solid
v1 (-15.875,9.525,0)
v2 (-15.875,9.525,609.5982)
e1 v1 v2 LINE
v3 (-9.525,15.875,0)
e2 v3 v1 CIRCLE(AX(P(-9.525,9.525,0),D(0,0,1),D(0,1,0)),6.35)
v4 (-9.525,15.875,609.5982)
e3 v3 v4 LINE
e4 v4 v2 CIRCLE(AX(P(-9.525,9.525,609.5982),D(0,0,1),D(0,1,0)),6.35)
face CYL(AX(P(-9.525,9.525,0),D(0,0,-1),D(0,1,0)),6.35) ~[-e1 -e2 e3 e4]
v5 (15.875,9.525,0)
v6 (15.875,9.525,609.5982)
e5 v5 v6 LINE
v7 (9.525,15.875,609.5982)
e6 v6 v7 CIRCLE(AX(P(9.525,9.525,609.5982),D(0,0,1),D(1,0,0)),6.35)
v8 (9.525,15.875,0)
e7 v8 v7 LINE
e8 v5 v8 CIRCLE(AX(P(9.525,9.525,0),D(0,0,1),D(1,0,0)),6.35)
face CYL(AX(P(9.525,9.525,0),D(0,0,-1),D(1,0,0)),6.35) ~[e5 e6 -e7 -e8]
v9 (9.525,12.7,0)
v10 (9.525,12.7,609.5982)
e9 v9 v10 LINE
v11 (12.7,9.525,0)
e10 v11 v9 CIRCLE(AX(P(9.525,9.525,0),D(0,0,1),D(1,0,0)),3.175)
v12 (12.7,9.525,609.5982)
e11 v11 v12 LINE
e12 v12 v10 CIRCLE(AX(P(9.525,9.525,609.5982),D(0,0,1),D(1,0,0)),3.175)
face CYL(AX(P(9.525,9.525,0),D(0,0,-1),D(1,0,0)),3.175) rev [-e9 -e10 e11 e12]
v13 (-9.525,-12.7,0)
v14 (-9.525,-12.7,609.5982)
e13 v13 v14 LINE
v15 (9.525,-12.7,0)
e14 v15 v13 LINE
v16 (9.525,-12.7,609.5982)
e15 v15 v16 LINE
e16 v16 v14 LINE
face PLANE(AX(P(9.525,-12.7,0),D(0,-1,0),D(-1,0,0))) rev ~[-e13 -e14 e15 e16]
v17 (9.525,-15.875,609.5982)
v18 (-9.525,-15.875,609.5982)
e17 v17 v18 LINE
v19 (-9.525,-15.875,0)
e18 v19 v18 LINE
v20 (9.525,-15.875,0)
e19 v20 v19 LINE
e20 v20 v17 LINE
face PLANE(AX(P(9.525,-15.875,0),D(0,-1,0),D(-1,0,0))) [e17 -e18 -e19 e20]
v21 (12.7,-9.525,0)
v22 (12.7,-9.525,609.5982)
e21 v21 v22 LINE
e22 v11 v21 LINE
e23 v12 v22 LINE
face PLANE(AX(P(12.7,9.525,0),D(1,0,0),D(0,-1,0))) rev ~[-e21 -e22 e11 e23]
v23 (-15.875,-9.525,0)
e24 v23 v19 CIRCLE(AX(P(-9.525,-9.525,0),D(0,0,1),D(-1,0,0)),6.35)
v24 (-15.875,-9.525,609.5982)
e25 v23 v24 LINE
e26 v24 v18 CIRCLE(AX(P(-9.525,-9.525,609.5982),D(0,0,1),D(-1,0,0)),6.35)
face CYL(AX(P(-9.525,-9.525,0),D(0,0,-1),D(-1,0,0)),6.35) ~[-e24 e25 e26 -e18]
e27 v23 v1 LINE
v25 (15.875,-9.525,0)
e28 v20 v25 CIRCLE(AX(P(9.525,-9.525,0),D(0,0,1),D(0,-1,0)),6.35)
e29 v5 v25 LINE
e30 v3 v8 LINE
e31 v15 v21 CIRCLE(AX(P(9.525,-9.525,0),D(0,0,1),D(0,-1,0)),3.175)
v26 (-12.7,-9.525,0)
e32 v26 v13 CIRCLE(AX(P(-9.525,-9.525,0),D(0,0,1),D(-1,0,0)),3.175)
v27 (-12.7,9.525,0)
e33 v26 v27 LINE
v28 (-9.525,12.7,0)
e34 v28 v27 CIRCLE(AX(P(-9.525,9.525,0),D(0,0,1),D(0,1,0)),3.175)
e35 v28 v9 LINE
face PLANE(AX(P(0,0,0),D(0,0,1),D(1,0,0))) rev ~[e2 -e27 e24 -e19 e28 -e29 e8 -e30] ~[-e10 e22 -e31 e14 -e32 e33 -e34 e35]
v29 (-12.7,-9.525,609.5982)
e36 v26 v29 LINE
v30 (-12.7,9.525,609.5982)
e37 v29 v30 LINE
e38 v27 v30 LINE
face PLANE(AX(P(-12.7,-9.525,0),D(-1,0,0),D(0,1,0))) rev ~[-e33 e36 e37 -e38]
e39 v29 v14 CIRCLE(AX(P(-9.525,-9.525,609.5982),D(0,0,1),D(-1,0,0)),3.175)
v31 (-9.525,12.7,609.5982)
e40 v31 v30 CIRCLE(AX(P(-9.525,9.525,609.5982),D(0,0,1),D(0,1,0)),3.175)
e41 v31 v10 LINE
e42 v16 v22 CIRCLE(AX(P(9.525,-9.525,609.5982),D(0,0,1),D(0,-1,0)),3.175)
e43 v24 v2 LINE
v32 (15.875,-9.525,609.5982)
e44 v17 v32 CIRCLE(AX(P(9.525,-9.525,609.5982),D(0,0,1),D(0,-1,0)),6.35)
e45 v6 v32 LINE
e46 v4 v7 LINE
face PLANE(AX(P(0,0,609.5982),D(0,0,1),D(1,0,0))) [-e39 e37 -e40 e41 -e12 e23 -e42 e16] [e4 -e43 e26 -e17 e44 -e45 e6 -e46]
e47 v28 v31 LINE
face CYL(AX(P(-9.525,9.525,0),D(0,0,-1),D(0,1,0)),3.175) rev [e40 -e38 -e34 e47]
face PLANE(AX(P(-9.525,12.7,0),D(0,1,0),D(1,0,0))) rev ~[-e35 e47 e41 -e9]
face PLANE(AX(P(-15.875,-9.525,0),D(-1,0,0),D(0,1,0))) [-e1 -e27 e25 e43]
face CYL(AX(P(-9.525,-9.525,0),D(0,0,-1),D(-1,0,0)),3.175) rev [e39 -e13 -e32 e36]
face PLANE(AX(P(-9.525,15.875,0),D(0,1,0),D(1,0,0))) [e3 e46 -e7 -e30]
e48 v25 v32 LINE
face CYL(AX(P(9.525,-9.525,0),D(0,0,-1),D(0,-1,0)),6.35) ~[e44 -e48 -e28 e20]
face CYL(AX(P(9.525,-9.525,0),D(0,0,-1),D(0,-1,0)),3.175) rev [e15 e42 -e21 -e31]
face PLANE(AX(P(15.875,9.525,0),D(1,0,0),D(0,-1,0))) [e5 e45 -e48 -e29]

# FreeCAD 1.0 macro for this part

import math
import FreeCAD as App
import Part
import Sketcher

V = App.Vector
Q = App.Units.Quantity

doc = App.newDocument("Part")
body = doc.addObject("PartDesign::Body", "Body")

# Sketch on XY plane
sketch1 = body.newObject("Sketcher::SketchObject", "Sketch")
sketch1.AttachmentSupport = (doc.getObject("XY_Plane"), [""])
sketch1.MapMode = "FlatFace"
sketch1.addGeometry([
    Part.LineSegment(V(-15.9, 9.5, 0), V(-15.9, -9.5, 0)),  # 0
    Part.ArcOfCircle(Part.Circle(V(-9.5, -9.5, 0), V(0, 0, 1), 6.3), math.radians(180), math.radians(270)),  # 1
    Part.LineSegment(V(-9.5, -15.9, 0), V(9.5, -15.9, 0)),  # 2
    Part.ArcOfCircle(Part.Circle(V(9.5, -9.5, 0), V(0, 0, 1), 6.3), math.radians(-90), math.radians(0)),  # 3
    Part.LineSegment(V(15.9, -9.5, 0), V(15.9, 9.5, 0)),  # 4
    Part.ArcOfCircle(Part.Circle(V(9.5, 9.5, 0), V(0, 0, 1), 6.3), math.radians(0), math.radians(90)),  # 5
    Part.LineSegment(V(9.5, 15.9, 0), V(-9.5, 15.9, 0)),  # 6
    Part.ArcOfCircle(Part.Circle(V(-9.5, 9.5, 0), V(0, 0, 1), 6.3), math.radians(90), math.radians(180)),  # 7
    Part.ArcOfCircle(Part.Circle(V(-9.5, 9.5, 0), V(0, 0, 1), 3.2), math.radians(90), math.radians(180)),  # 8
    Part.LineSegment(V(-9.5, 12.7, 0), V(9.5, 12.7, 0)),  # 9
    Part.ArcOfCircle(Part.Circle(V(9.5, 9.5, 0), V(0, 0, 1), 3.2), math.radians(0), math.radians(90)),  # 10
    Part.LineSegment(V(12.7, 9.5, 0), V(12.7, -9.5, 0)),  # 11
    Part.ArcOfCircle(Part.Circle(V(9.5, -9.5, 0), V(0, 0, 1), 3.2), math.radians(-90), math.radians(0)),  # 12
    Part.LineSegment(V(9.5, -12.7, 0), V(-9.5, -12.7, 0)),  # 13
    Part.ArcOfCircle(Part.Circle(V(-9.5, -9.5, 0), V(0, 0, 1), 3.2), math.radians(180), math.radians(270)),  # 14
    Part.LineSegment(V(-12.7, -9.5, 0), V(-12.7, 9.5, 0)),  # 15
], False)
sketch1.addConstraint([
    Sketcher.Constraint("Tangent", 0, 2, 1, 1),
    Sketcher.Constraint("Tangent", 1, 2, 2, 1),
    Sketcher.Constraint("Tangent", 2, 2, 3, 1),
    Sketcher.Constraint("Tangent", 3, 2, 4, 1),
    Sketcher.Constraint("Tangent", 4, 2, 5, 1),
    Sketcher.Constraint("Tangent", 5, 2, 6, 1),
    Sketcher.Constraint("Tangent", 6, 2, 7, 1),
    Sketcher.Constraint("Tangent", 7, 2, 0, 1),
    Sketcher.Constraint("Tangent", 8, 1, 9, 1),
    Sketcher.Constraint("Tangent", 9, 2, 10, 2),
    Sketcher.Constraint("Tangent", 10, 1, 11, 1),
    Sketcher.Constraint("Tangent", 11, 2, 12, 2),
    Sketcher.Constraint("Tangent", 12, 1, 13, 1),
    Sketcher.Constraint("Tangent", 13, 2, 14, 2),
    Sketcher.Constraint("Tangent", 14, 1, 15, 1),
    Sketcher.Constraint("Tangent", 15, 2, 8, 2),
    Sketcher.Constraint("Vertical", 0),
    Sketcher.Constraint("Horizontal", 2),
    Sketcher.Constraint("Vertical", 4),
    Sketcher.Constraint("Horizontal", 6),
    Sketcher.Constraint("Horizontal", 9),
    Sketcher.Constraint("Vertical", 11),
    Sketcher.Constraint("Horizontal", 13),
    Sketcher.Constraint("Vertical", 15),
    Sketcher.Constraint("Coincident", 8, 3, 7, 3),
    Sketcher.Constraint("Coincident", 10, 3, 5, 3),
    Sketcher.Constraint("Coincident", 12, 3, 3, 3),
    Sketcher.Constraint("Equal", 1, 3),
    Sketcher.Constraint("Equal", 3, 5),
    Sketcher.Constraint("Equal", 5, 7),
    Sketcher.Constraint("Equal", 12, 14),
    Sketcher.Constraint("Symmetric", 1, 3, 5, 3, -1, 1),
    Sketcher.Constraint("Equal", 13, 0),
    Sketcher.Constraint("Radius", 1, Q("0.25 in")),
    Sketcher.Constraint("Radius", 8, Q("0.125 in")),
    Sketcher.Constraint("DistanceX", 0, 2, -1, 1, Q("0.625 in")),
])
pad1 = body.newObject("PartDesign::Pad", "Pad")
pad1.Profile = sketch1
pad1.Length = 609.5982

doc.recompute()
